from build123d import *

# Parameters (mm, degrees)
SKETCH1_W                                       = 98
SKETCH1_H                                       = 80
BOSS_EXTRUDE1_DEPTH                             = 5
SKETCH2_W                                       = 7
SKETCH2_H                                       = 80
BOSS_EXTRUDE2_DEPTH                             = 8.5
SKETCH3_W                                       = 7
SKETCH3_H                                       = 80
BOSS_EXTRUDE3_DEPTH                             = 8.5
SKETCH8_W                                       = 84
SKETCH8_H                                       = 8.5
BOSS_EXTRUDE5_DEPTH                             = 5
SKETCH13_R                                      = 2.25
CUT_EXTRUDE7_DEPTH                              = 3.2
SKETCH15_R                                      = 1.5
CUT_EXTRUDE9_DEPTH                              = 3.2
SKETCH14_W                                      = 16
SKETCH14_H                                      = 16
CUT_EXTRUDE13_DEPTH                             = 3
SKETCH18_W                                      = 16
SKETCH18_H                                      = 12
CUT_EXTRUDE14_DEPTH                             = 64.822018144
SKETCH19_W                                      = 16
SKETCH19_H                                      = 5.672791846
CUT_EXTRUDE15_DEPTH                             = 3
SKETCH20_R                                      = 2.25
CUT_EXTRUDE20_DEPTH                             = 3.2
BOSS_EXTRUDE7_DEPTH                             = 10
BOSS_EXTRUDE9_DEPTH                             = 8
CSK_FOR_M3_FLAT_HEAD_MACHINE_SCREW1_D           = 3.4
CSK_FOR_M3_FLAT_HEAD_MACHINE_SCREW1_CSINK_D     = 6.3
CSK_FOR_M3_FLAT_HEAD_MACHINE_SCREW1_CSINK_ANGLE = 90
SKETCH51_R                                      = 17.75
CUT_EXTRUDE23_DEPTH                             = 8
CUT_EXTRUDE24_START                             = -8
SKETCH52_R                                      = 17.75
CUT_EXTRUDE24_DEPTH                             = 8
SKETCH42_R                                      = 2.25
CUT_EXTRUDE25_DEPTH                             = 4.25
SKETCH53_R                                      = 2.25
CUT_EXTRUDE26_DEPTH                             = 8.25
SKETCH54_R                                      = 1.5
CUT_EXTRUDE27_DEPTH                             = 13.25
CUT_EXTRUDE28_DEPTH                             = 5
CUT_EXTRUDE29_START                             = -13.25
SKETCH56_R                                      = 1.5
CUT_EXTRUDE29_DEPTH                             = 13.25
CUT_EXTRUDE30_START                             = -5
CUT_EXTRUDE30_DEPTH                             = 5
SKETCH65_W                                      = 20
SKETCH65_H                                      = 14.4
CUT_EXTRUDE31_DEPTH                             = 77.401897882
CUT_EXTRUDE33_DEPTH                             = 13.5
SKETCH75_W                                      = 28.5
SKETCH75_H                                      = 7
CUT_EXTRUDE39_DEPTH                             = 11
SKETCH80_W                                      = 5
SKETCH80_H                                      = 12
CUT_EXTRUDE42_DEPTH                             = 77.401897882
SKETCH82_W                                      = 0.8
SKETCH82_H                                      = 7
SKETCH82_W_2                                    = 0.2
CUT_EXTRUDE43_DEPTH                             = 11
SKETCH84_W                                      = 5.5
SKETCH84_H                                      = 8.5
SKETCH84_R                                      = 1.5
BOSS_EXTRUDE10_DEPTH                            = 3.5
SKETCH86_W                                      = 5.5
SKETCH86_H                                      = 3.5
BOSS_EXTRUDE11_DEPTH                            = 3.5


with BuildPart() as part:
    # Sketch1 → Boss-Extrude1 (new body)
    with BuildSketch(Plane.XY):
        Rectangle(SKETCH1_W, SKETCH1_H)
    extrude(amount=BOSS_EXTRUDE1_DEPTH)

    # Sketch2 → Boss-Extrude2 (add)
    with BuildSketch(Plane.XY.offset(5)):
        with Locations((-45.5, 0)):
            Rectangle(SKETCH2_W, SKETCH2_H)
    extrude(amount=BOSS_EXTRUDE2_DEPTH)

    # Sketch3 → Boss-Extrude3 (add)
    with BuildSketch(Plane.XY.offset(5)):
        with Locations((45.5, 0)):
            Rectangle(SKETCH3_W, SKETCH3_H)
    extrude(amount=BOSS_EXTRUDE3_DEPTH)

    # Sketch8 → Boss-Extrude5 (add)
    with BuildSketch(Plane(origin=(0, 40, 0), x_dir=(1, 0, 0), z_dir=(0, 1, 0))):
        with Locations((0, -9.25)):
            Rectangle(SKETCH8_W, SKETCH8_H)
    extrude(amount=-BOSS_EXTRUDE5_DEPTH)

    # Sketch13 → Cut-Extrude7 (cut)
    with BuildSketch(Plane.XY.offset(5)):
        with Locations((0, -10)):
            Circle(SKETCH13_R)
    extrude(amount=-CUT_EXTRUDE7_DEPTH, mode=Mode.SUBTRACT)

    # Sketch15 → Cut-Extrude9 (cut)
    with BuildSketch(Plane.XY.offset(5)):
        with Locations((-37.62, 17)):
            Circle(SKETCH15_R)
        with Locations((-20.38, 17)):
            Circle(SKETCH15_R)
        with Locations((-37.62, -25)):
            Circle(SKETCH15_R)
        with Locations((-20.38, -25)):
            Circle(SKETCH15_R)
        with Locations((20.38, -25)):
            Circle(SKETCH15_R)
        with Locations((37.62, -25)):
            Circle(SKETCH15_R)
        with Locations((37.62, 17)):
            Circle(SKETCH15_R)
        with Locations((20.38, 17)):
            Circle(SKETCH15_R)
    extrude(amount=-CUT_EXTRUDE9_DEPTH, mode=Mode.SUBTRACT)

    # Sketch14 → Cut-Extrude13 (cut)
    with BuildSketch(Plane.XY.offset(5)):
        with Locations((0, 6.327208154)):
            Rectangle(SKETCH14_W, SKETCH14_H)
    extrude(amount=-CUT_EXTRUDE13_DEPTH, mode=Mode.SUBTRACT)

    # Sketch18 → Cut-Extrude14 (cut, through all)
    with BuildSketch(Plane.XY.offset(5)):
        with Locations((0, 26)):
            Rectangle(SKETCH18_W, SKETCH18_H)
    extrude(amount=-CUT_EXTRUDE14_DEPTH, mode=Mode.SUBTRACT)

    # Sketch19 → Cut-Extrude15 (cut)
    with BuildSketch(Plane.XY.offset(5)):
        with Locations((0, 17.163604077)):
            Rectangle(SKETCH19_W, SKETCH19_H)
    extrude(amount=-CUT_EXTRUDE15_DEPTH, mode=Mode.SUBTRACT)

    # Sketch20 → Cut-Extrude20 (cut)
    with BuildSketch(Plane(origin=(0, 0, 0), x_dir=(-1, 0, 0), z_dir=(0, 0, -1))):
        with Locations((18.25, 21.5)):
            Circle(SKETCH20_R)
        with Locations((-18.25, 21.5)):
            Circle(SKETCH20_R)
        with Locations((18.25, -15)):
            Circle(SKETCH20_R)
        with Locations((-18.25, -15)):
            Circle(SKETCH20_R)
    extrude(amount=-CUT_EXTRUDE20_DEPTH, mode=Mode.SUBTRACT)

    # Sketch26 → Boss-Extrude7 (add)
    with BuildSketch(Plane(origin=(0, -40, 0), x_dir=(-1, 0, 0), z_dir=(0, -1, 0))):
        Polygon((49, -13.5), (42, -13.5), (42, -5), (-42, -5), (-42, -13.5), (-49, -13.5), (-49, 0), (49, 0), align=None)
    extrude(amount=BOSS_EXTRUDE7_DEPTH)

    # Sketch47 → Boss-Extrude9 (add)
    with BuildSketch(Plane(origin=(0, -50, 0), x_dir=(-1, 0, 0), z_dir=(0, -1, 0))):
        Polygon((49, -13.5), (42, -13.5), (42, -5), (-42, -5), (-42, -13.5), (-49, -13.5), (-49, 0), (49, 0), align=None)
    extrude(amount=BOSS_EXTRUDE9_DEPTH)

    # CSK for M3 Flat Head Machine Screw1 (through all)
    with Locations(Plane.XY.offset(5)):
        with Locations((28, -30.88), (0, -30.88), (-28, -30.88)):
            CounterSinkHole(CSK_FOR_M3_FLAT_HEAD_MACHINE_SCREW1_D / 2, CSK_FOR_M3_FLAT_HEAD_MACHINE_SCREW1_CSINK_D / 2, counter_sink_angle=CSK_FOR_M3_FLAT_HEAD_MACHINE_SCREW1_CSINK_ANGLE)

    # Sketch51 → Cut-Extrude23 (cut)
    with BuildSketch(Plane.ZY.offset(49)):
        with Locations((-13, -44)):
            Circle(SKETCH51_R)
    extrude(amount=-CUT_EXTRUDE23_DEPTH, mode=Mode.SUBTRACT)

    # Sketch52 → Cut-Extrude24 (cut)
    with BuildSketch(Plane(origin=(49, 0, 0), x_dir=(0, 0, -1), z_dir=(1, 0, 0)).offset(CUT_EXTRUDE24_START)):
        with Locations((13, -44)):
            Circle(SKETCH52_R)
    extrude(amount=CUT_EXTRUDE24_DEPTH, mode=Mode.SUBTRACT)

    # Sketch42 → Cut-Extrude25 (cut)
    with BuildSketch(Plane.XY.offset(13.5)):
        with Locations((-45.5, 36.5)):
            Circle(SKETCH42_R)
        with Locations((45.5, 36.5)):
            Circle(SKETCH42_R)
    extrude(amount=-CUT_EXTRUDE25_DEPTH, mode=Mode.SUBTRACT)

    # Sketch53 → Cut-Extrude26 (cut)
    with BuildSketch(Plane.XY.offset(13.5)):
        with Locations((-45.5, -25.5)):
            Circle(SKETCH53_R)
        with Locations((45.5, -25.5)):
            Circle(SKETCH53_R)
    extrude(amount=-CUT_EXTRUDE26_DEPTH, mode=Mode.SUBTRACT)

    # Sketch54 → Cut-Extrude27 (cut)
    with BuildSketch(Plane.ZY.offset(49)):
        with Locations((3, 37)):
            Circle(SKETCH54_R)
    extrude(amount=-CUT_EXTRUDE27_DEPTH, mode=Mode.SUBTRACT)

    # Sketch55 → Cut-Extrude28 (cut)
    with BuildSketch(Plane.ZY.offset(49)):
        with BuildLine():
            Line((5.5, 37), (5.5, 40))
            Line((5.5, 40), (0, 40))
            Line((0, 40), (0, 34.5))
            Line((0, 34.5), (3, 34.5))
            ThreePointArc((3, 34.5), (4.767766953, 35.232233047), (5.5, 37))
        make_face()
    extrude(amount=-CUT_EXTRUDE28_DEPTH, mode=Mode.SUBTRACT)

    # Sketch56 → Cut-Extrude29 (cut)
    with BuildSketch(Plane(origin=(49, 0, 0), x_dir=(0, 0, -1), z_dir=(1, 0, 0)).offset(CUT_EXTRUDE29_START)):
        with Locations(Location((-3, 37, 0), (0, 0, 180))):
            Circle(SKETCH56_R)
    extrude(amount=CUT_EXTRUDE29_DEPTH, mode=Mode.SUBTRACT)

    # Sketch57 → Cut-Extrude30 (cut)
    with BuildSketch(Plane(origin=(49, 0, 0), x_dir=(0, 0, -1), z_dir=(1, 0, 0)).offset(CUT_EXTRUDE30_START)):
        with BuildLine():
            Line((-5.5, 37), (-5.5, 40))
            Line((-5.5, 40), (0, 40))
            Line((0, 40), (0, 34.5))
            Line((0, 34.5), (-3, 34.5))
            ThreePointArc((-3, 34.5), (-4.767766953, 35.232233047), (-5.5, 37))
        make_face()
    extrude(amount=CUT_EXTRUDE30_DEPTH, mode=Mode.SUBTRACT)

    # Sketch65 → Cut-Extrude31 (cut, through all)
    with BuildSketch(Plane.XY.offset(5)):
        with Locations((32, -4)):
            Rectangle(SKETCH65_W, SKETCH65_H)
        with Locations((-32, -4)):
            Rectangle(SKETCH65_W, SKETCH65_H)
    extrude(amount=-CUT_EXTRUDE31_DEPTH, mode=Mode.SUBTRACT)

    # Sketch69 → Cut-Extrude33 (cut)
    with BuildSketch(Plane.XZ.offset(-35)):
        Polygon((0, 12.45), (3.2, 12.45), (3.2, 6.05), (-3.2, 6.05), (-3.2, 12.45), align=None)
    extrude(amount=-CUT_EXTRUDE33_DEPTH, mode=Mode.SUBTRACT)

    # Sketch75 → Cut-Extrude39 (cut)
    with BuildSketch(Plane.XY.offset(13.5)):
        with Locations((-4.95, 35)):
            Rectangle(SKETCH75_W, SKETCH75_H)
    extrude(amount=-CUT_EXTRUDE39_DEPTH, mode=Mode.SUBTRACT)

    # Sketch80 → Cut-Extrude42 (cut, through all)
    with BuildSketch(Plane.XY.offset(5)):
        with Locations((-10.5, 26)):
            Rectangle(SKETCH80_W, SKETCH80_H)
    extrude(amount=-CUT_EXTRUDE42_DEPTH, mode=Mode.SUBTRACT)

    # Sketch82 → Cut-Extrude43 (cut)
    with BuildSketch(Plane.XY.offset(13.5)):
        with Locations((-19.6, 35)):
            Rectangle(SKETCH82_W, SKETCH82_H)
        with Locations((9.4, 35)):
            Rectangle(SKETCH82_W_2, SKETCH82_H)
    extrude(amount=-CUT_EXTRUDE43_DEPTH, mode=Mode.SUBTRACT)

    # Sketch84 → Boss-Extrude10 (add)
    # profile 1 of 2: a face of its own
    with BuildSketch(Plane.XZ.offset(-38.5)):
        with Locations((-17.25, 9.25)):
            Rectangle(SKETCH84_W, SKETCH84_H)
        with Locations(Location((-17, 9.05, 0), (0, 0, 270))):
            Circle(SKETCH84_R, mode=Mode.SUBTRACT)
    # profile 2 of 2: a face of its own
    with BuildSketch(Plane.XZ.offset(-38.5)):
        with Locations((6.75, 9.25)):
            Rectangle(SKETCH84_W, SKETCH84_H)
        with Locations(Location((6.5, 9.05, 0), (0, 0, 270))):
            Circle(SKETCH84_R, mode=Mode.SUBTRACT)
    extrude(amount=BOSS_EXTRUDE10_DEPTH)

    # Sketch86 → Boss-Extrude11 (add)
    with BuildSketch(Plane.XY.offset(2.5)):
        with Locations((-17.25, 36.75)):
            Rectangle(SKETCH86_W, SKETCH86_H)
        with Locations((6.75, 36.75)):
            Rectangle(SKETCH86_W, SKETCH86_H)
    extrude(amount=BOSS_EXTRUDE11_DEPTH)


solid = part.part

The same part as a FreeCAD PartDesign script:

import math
import FreeCAD as App
import Part
import Sketcher


def add_polygon(sketch, points):
    """Adds a closed chain of lines whose ends are joined by coincident constraints."""
    first, n = sketch.GeometryCount, len(points)
    for a, b in zip(points, points[1:] + points[:1]):
        sketch.addGeometry(Part.LineSegment(App.Vector(*a, 0), App.Vector(*b, 0)), False)
    for i in range(n):
        sketch.addConstraint(Sketcher.Constraint("Coincident", first + i, 2, first + (i + 1) % n, 1))

doc = App.newDocument("Part")
body = doc.addObject("PartDesign::Body", "Body")

sketch1 = body.newObject("Sketcher::SketchObject", "Sketch")
sketch1.AttachmentSupport = (doc.getObject("XY_Plane"), [""])
sketch1.MapMode = "FlatFace"
add_polygon(sketch1, [(-49, 40), (-49, -40), (49, -40), (49, 40)])
sketch1.addConstraint(Sketcher.Constraint("Vertical", 0))
sketch1.addConstraint(Sketcher.Constraint("Horizontal", 1))
sketch1.addConstraint(Sketcher.Constraint("Vertical", 2))
sketch1.addConstraint(Sketcher.Constraint("Horizontal", 3))
sketch1.addConstraint(Sketcher.Constraint("Symmetric", 0, 2, 2, 2, -1, 1))
sketch1.addConstraint(Sketcher.Constraint("DistanceX", 1, 1, 1, 2, 98.0))
sketch1.addConstraint(Sketcher.Constraint("DistanceY", 0, 2, 0, 1, 80.0))
pad1 = body.newObject("PartDesign::Pad", "Pad")
pad1.Profile = sketch1
pad1.Length = 5

sketch2 = body.newObject("Sketcher::SketchObject", "Sketch001")
sketch2.AttachmentSupport = (doc.getObject("XY_Plane"), [""])
sketch2.MapMode = "FlatFace"
sketch2.AttachmentOffset = App.Placement(App.Vector(0, 0, 5), App.Rotation())
add_polygon(sketch2, [(-49, 40), (-49, -40), (-42, -40), (-42, 40)])
sketch2.addConstraint(Sketcher.Constraint("Vertical", 0))
sketch2.addConstraint(Sketcher.Constraint("Horizontal", 1))
sketch2.addConstraint(Sketcher.Constraint("Vertical", 2))
sketch2.addConstraint(Sketcher.Constraint("Horizontal", 3))
sketch2.addConstraint(Sketcher.Constraint("DistanceX", 1, 1, 1, 2, 7.0))
sketch2.addConstraint(Sketcher.Constraint("DistanceY", 0, 2, 0, 1, 80.0))
sketch2.addConstraint(Sketcher.Constraint("DistanceX", 0, 2, -1, 1, 49.0))
sketch2.addConstraint(Sketcher.Constraint("DistanceY", 0, 2, -1, 1, 40.0))
pad2 = body.newObject("PartDesign::Pad", "Pad001")
pad2.Profile = sketch2
pad2.Length = 8.5

sketch3 = body.newObject("Sketcher::SketchObject", "Sketch002")
sketch3.AttachmentSupport = (doc.getObject("XY_Plane"), [""])
sketch3.MapMode = "FlatFace"
sketch3.AttachmentOffset = App.Placement(App.Vector(0, 0, 5), App.Rotation())
add_polygon(sketch3, [(42, 40), (42, -40), (49, -40), (49, 40)])
sketch3.addConstraint(Sketcher.Constraint("Vertical", 0))
sketch3.addConstraint(Sketcher.Constraint("Horizontal", 1))
sketch3.addConstraint(Sketcher.Constraint("Vertical", 2))
sketch3.addConstraint(Sketcher.Constraint("Horizontal", 3))
sketch3.addConstraint(Sketcher.Constraint("DistanceX", 1, 1, 1, 2, 7.0))
sketch3.addConstraint(Sketcher.Constraint("DistanceY", 0, 2, 0, 1, 80.0))
sketch3.addConstraint(Sketcher.Constraint("DistanceX", -1, 1, 0, 2, 42.0))
sketch3.addConstraint(Sketcher.Constraint("DistanceY", 0, 2, -1, 1, 40.0))
pad3 = body.newObject("PartDesign::Pad", "Pad002")
pad3.Profile = sketch3
pad3.Length = 8.5

sketch4 = body.newObject("Sketcher::SketchObject", "Sketch003")
sketch4.AttachmentSupport = (doc.getObject("XZ_Plane"), [""])
sketch4.MapMode = "FlatFace"
sketch4.AttachmentOffset = App.Placement(App.Vector(0, 0, -40), App.Rotation())
add_polygon(sketch4, [(-42, 5), (-42, 13.5), (42, 13.5), (42, 5)])
sketch4.addConstraint(Sketcher.Constraint("Vertical", 0))
sketch4.addConstraint(Sketcher.Constraint("Horizontal", 1))
sketch4.addConstraint(Sketcher.Constraint("Vertical", 2))
sketch4.addConstraint(Sketcher.Constraint("Horizontal", 3))
sketch4.addConstraint(Sketcher.Constraint("DistanceX", 1, 1, 1, 2, 84.0))
sketch4.addConstraint(Sketcher.Constraint("DistanceY", 0, 1, 0, 2, 8.5))
sketch4.addConstraint(Sketcher.Constraint("DistanceX", 0, 2, -1, 1, 42.0))
sketch4.addConstraint(Sketcher.Constraint("DistanceY", -1, 1, 2, 2, 5.0))
pad4 = body.newObject("PartDesign::Pad", "Pad003")
pad4.Profile = sketch4
pad4.Length = 5

sketch5 = body.newObject("Sketcher::SketchObject", "Sketch004")
sketch5.AttachmentSupport = (doc.getObject("XY_Plane"), [""])
sketch5.MapMode = "FlatFace"
sketch5.AttachmentOffset = App.Placement(App.Vector(0, 0, 5), App.Rotation())
sketch5.addGeometry(Part.Circle(App.Vector(0, -10, 0), App.Vector(0, 0, 1), 2.25), False)
sketch5.addConstraint(Sketcher.Constraint("PointOnObject", 0, 3, -2))
sketch5.addConstraint(Sketcher.Constraint("Diameter", 0, 4.5))
sketch5.addConstraint(Sketcher.Constraint("DistanceY", 0, 3, -1, 1, 10.0))
pocket1 = body.newObject("PartDesign::Pocket", "Pocket")
pocket1.Profile = sketch5
pocket1.Length = 3.2

sketch6 = body.newObject("Sketcher::SketchObject", "Sketch005")
sketch6.AttachmentSupport = (doc.getObject("XY_Plane"), [""])
sketch6.MapMode = "FlatFace"
sketch6.AttachmentOffset = App.Placement(App.Vector(0, 0, 5), App.Rotation())
sketch6.addGeometry(Part.Circle(App.Vector(-37.62, 17, 0), App.Vector(0, 0, 1), 1.5), False)
sketch6.addGeometry(Part.Circle(App.Vector(-20.38, 17, 0), App.Vector(0, 0, 1), 1.5), False)
sketch6.addGeometry(Part.Circle(App.Vector(-37.62, -25, 0), App.Vector(0, 0, 1), 1.5), False)
sketch6.addGeometry(Part.Circle(App.Vector(-20.38, -25, 0), App.Vector(0, 0, 1), 1.5), False)
sketch6.addGeometry(Part.Circle(App.Vector(20.38, -25, 0), App.Vector(0, 0, 1), 1.5), False)
sketch6.addGeometry(Part.Circle(App.Vector(37.62, -25, 0), App.Vector(0, 0, 1), 1.5), False)
sketch6.addGeometry(Part.Circle(App.Vector(37.62, 17, 0), App.Vector(0, 0, 1), 1.5), False)
sketch6.addGeometry(Part.Circle(App.Vector(20.38, 17, 0), App.Vector(0, 0, 1), 1.5), False)
sketch6.addConstraint(Sketcher.Constraint("Equal", 0, 1))
sketch6.addConstraint(Sketcher.Constraint("Equal", 1, 2))
sketch6.addConstraint(Sketcher.Constraint("Equal", 2, 3))
sketch6.addConstraint(Sketcher.Constraint("Equal", 3, 4))
sketch6.addConstraint(Sketcher.Constraint("Equal", 4, 5))
sketch6.addConstraint(Sketcher.Constraint("Equal", 5, 6))
sketch6.addConstraint(Sketcher.Constraint("Equal", 6, 7))
sketch6.addConstraint(Sketcher.Constraint("Symmetric", 3, 3, 4, 3, -2))
sketch6.addConstraint(Sketcher.Constraint("Symmetric", 2, 3, 5, 3, -2))
sketch6.addConstraint(Sketcher.Constraint("Symmetric", 0, 3, 6, 3, -2))
sketch6.addConstraint(Sketcher.Constraint("Symmetric", 1, 3, 7, 3, -2))
sketch6.addConstraint(Sketcher.Constraint("Horizontal", 0, 3, 1, 3))
sketch6.addConstraint(Sketcher.Constraint("Horizontal", 2, 3, 3, 3))
sketch6.addConstraint(Sketcher.Constraint("Vertical", 0, 3, 2, 3))
sketch6.addConstraint(Sketcher.Constraint("Vertical", 1, 3, 3, 3))
sketch6.addConstraint(Sketcher.Constraint("Diameter", 0, 3.0))
sketch6.addConstraint(Sketcher.Constraint("DistanceY", -1, 1, 0, 3, 17.0))
sketch6.addConstraint(Sketcher.Constraint("DistanceY", 2, 3, -1, 1, 25.0))
sketch6.addConstraint(Sketcher.Constraint("DistanceX", 2, 3, 4, 3, 58.0))
sketch6.addConstraint(Sketcher.Constraint("DistanceX", 0, 3, -1, 1, 37.62))
pocket2 = body.newObject("PartDesign::Pocket", "Pocket001")
pocket2.Profile = sketch6
pocket2.Length = 3.2

sketch7 = body.newObject("Sketcher::SketchObject", "Sketch006")
sketch7.AttachmentSupport = (doc.getObject("XY_Plane"), [""])
sketch7.MapMode = "FlatFace"
sketch7.AttachmentOffset = App.Placement(App.Vector(0, 0, 5), App.Rotation())
add_polygon(sketch7, [(-8, 14.327208), (-8, -1.672792), (8, -1.672792), (8, 14.327208)])
sketch7.addConstraint(Sketcher.Constraint("Vertical", 0))
sketch7.addConstraint(Sketcher.Constraint("Horizontal", 1))
sketch7.addConstraint(Sketcher.Constraint("Vertical", 2))
sketch7.addConstraint(Sketcher.Constraint("Horizontal", 3))
sketch7.addConstraint(Sketcher.Constraint("Equal", 3, 0))
sketch7.addConstraint(Sketcher.Constraint("DistanceX", 1, 1, 1, 2, 16.0))
sketch7.addConstraint(Sketcher.Constraint("DistanceX", 0, 2, -1, 1, 8.0))
sketch7.addConstraint(Sketcher.Constraint("DistanceY", 0, 2, -1, 1, 1.672792))
pocket3 = body.newObject("PartDesign::Pocket", "Pocket002")
pocket3.Profile = sketch7
pocket3.Length = 3

sketch8 = body.newObject("Sketcher::SketchObject", "Sketch007")
sketch8.AttachmentSupport = (doc.getObject("XY_Plane"), [""])
sketch8.MapMode = "FlatFace"
sketch8.AttachmentOffset = App.Placement(App.Vector(0, 0, 5), App.Rotation())
add_polygon(sketch8, [(-8, 32), (-8, 20), (8, 20), (8, 32)])
sketch8.addConstraint(Sketcher.Constraint("Vertical", 0))
sketch8.addConstraint(Sketcher.Constraint("Horizontal", 1))
sketch8.addConstraint(Sketcher.Constraint("Vertical", 2))
sketch8.addConstraint(Sketcher.Constraint("Horizontal", 3))
sketch8.addConstraint(Sketcher.Constraint("DistanceX", 1, 1, 1, 2, 16.0))
sketch8.addConstraint(Sketcher.Constraint("DistanceY", 0, 2, 0, 1, 12.0))
sketch8.addConstraint(Sketcher.Constraint("DistanceX", 0, 2, -1, 1, 8.0))
sketch8.addConstraint(Sketcher.Constraint("DistanceY", -1, 1, 0, 2, 20.0))
pocket4 = body.newObject("PartDesign::Pocket", "Pocket003")
pocket4.Profile = sketch8
pocket4.Type = "ThroughAll"

sketch9 = body.newObject("Sketcher::SketchObject", "Sketch008")
sketch9.AttachmentSupport = (doc.getObject("XY_Plane"), [""])
sketch9.MapMode = "FlatFace"
sketch9.AttachmentOffset = App.Placement(App.Vector(0, 0, 5), App.Rotation())
add_polygon(sketch9, [(-8, 20), (-8, 14.327208), (8, 14.327208), (8, 20)])
sketch9.addConstraint(Sketcher.Constraint("Vertical", 0))
sketch9.addConstraint(Sketcher.Constraint("Horizontal", 1))
sketch9.addConstraint(Sketcher.Constraint("Vertical", 2))
sketch9.addConstraint(Sketcher.Constraint("Horizontal", 3))
sketch9.addConstraint(Sketcher.Constraint("DistanceX", 1, 1, 1, 2, 16.0))
sketch9.addConstraint(Sketcher.Constraint("DistanceX", 0, 2, -1, 1, 8.0))
sketch9.addConstraint(Sketcher.Constraint("DistanceY", -1, 1, 2, 2, 20.0))
sketch9.addConstraint(Sketcher.Constraint("DistanceY", 0, 2, 0, 1, 5.672792))
pocket5 = body.newObject("PartDesign::Pocket", "Pocket004")
pocket5.Profile = sketch9
pocket5.Length = 3

sketch10 = body.newObject("Sketcher::SketchObject", "Sketch009")
sketch10.AttachmentSupport = (doc.getObject("XY_Plane"), [""])
sketch10.MapMode = "FlatFace"
sketch10.addGeometry(Part.Circle(App.Vector(-18.25, 21.5, 0), App.Vector(0, 0, 1), 2.25), False)
sketch10.addGeometry(Part.Circle(App.Vector(18.25, 21.5, 0), App.Vector(0, 0, 1), 2.25), False)
sketch10.addGeometry(Part.Circle(App.Vector(-18.25, -15, 0), App.Vector(0, 0, 1), 2.25), False)
sketch10.addGeometry(Part.Circle(App.Vector(18.25, -15, 0), App.Vector(0, 0, 1), 2.25), False)
sketch10.addConstraint(Sketcher.Constraint("Equal", 0, 1))
sketch10.addConstraint(Sketcher.Constraint("Equal", 1, 2))
sketch10.addConstraint(Sketcher.Constraint("Equal", 2, 3))
sketch10.addConstraint(Sketcher.Constraint("Symmetric", 0, 3, 1, 3, -2))
sketch10.addConstraint(Sketcher.Constraint("Symmetric", 2, 3, 3, 3, -2))
sketch10.addConstraint(Sketcher.Constraint("Vertical", 0, 3, 2, 3))
sketch10.addConstraint(Sketcher.Constraint("Diameter", 0, 4.5))
sketch10.addConstraint(Sketcher.Constraint("DistanceY", 2, 3, -1, 1, 15.0))
sketch10.addConstraint(Sketcher.Constraint("DistanceY", -1, 1, 0, 3, 21.5))
sketch10.addConstraint(Sketcher.Constraint("DistanceX", 0, 3, 1, 3, 36.5))
pocket6 = body.newObject("PartDesign::Pocket", "Pocket005")
pocket6.Profile = sketch10
pocket6.Length = 3.2
pocket6.Reversed = True

sketch11 = body.newObject("Sketcher::SketchObject", "Sketch010")
sketch11.AttachmentSupport = (doc.getObject("XZ_Plane"), [""])
sketch11.MapMode = "FlatFace"
sketch11.AttachmentOffset = App.Placement(App.Vector(0, 0, 40), App.Rotation())
add_polygon(sketch11, [(-42, 13.5), (-49, 13.5), (-49, 0), (49, 0), (49, 13.5), (42, 13.5), (42, 5), (-42, 5)])
sketch11.addConstraint(Sketcher.Constraint("Horizontal", 0))
sketch11.addConstraint(Sketcher.Constraint("Vertical", 1))
sketch11.addConstraint(Sketcher.Constraint("Horizontal", 2))
sketch11.addConstraint(Sketcher.Constraint("Vertical", 3))
sketch11.addConstraint(Sketcher.Constraint("Horizontal", 4))
sketch11.addConstraint(Sketcher.Constraint("Vertical", 5))
sketch11.addConstraint(Sketcher.Constraint("Horizontal", 6))
sketch11.addConstraint(Sketcher.Constraint("Vertical", 7))
sketch11.addConstraint(Sketcher.Constraint("Symmetric", 1, 2, 2, 2, -1, 1))
sketch11.addConstraint(Sketcher.Constraint("Symmetric", 4, 2, 7, 2, -2))
sketch11.addConstraint(Sketcher.Constraint("DistanceX", 0, 2, 0, 1, 7.0))
sketch11.addConstraint(Sketcher.Constraint("DistanceX", 2, 1, 2, 2, 98.0))
sketch11.addConstraint(Sketcher.Constraint("DistanceY", 1, 2, 1, 1, 13.5))
sketch11.addConstraint(Sketcher.Constraint("DistanceY", 5, 2, 5, 1, 8.5))
pad5 = body.newObject("PartDesign::Pad", "Pad004")
pad5.Profile = sketch11
pad5.Length = 10

sketch12 = body.newObject("Sketcher::SketchObject", "Sketch011")
sketch12.AttachmentSupport = (doc.getObject("XZ_Plane"), [""])
sketch12.MapMode = "FlatFace"
sketch12.AttachmentOffset = App.Placement(App.Vector(0, 0, 50), App.Rotation())
add_polygon(sketch12, [(-42, 13.5), (-49, 13.5), (-49, 0), (49, 0), (49, 13.5), (42, 13.5), (42, 5), (-42, 5)])
sketch12.addConstraint(Sketcher.Constraint("Horizontal", 0))
sketch12.addConstraint(Sketcher.Constraint("Vertical", 1))
sketch12.addConstraint(Sketcher.Constraint("Horizontal", 2))
sketch12.addConstraint(Sketcher.Constraint("Vertical", 3))
sketch12.addConstraint(Sketcher.Constraint("Horizontal", 4))
sketch12.addConstraint(Sketcher.Constraint("Vertical", 5))
sketch12.addConstraint(Sketcher.Constraint("Horizontal", 6))
sketch12.addConstraint(Sketcher.Constraint("Vertical", 7))
sketch12.addConstraint(Sketcher.Constraint("Symmetric", 1, 2, 2, 2, -1, 1))
sketch12.addConstraint(Sketcher.Constraint("Symmetric", 4, 2, 7, 2, -2))
sketch12.addConstraint(Sketcher.Constraint("DistanceX", 0, 2, 0, 1, 7.0))
sketch12.addConstraint(Sketcher.Constraint("DistanceX", 2, 1, 2, 2, 98.0))
sketch12.addConstraint(Sketcher.Constraint("DistanceY", 1, 2, 1, 1, 13.5))
sketch12.addConstraint(Sketcher.Constraint("DistanceY", 5, 2, 5, 1, 8.5))
pad6 = body.newObject("PartDesign::Pad", "Pad005")
pad6.Profile = sketch12
pad6.Length = 8

sketch13 = body.newObject("Sketcher::SketchObject", "Sketch012")
sketch13.AttachmentSupport = (doc.getObject("XY_Plane"), [""])
sketch13.MapMode = "FlatFace"
sketch13.AttachmentOffset = App.Placement(App.Vector(0, 0, 5), App.Rotation())
sketch13.addGeometry(Part.Circle(App.Vector(28, -30.88, 0), App.Vector(0, 0, 1), 1.7), False)
sketch13.addGeometry(Part.Circle(App.Vector(0, -30.88, 0), App.Vector(0, 0, 1), 1.7), False)
sketch13.addGeometry(Part.Circle(App.Vector(-28, -30.88, 0), App.Vector(0, 0, 1), 1.7), False)
sketch13.addConstraint(Sketcher.Constraint("Equal", 0, 1))
sketch13.addConstraint(Sketcher.Constraint("Equal", 1, 2))
sketch13.addConstraint(Sketcher.Constraint("Symmetric", 0, 3, 2, 3, -2))
sketch13.addConstraint(Sketcher.Constraint("PointOnObject", 1, 3, -2))
sketch13.addConstraint(Sketcher.Constraint("Horizontal", 0, 3, 1, 3))
sketch13.addConstraint(Sketcher.Constraint("Diameter", 0, 3.4))
sketch13.addConstraint(Sketcher.Constraint("DistanceX", -1, 1, 0, 3, 28.0))
sketch13.addConstraint(Sketcher.Constraint("DistanceY", 0, 3, -1, 1, 30.88))
doc.recompute()
hole = body.newObject("PartDesign::Hole", "Hole")
hole.Profile = sketch13
hole.ThreadType = "None"
hole.Diameter = 3.4
hole.DepthType = "ThroughAll"
hole.HoleCutType = "Countersink"
hole.HoleCutDiameter = 6.3
hole.HoleCutCountersinkAngle = 90

sketch14 = body.newObject("Sketcher::SketchObject", "Sketch013")
sketch14.AttachmentSupport = (doc.getObject("YZ_Plane"), [""])
sketch14.MapMode = "FlatFace"
sketch14.AttachmentOffset = App.Placement(App.Vector(0, 0, -49), App.Rotation())
sketch14.addGeometry(Part.Circle(App.Vector(-44, -13, 0), App.Vector(0, 0, 1), 17.75), False)
sketch14.addConstraint(Sketcher.Constraint("Diameter", 0, 35.5))
sketch14.addConstraint(Sketcher.Constraint("DistanceX", 0, 3, -1, 1, 44.0))
sketch14.addConstraint(Sketcher.Constraint("DistanceY", 0, 3, -1, 1, 13.0))
pocket7 = body.newObject("PartDesign::Pocket", "Pocket006")
pocket7.Profile = sketch14
pocket7.Length = 8
pocket7.Reversed = True

sketch15 = body.newObject("Sketcher::SketchObject", "Sketch014")
sketch15.AttachmentSupport = (doc.getObject("YZ_Plane"), [""])
sketch15.MapMode = "FlatFace"
sketch15.AttachmentOffset = App.Placement(App.Vector(0, 0, 41), App.Rotation())
sketch15.addGeometry(Part.Circle(App.Vector(-44, -13, 0), App.Vector(0, 0, 1), 17.75), False)
sketch15.addConstraint(Sketcher.Constraint("Diameter", 0, 35.5))
sketch15.addConstraint(Sketcher.Constraint("DistanceX", 0, 3, -1, 1, 44.0))
sketch15.addConstraint(Sketcher.Constraint("DistanceY", 0, 3, -1, 1, 13.0))
pocket8 = body.newObject("PartDesign::Pocket", "Pocket007")
pocket8.Profile = sketch15
pocket8.Length = 8
pocket8.Reversed = True

sketch16 = body.newObject("Sketcher::SketchObject", "Sketch015")
sketch16.AttachmentSupport = (doc.getObject("XY_Plane"), [""])
sketch16.MapMode = "FlatFace"
sketch16.AttachmentOffset = App.Placement(App.Vector(0, 0, 13.5), App.Rotation())
sketch16.addGeometry(Part.Circle(App.Vector(-45.5, 36.5, 0), App.Vector(0, 0, 1), 2.25), False)
sketch16.addGeometry(Part.Circle(App.Vector(45.5, 36.5, 0), App.Vector(0, 0, 1), 2.25), False)
sketch16.addConstraint(Sketcher.Constraint("Equal", 0, 1))
sketch16.addConstraint(Sketcher.Constraint("Symmetric", 0, 3, 1, 3, -2))
sketch16.addConstraint(Sketcher.Constraint("Diameter", 0, 4.5))
sketch16.addConstraint(Sketcher.Constraint("DistanceX", 0, 3, 1, 3, 91.0))
sketch16.addConstraint(Sketcher.Constraint("DistanceY", -1, 1, 0, 3, 36.5))
pocket9 = body.newObject("PartDesign::Pocket", "Pocket008")
pocket9.Profile = sketch16
pocket9.Length = 4.25

sketch17 = body.newObject("Sketcher::SketchObject", "Sketch016")
sketch17.AttachmentSupport = (doc.getObject("XY_Plane"), [""])
sketch17.MapMode = "FlatFace"
sketch17.AttachmentOffset = App.Placement(App.Vector(0, 0, 13.5), App.Rotation())
sketch17.addGeometry(Part.Circle(App.Vector(-45.5, -25.5, 0), App.Vector(0, 0, 1), 2.25), False)
sketch17.addGeometry(Part.Circle(App.Vector(45.5, -25.5, 0), App.Vector(0, 0, 1), 2.25), False)
sketch17.addConstraint(Sketcher.Constraint("Equal", 0, 1))
sketch17.addConstraint(Sketcher.Constraint("Symmetric", 0, 3, 1, 3, -2))
sketch17.addConstraint(Sketcher.Constraint("Diameter", 0, 4.5))
sketch17.addConstraint(Sketcher.Constraint("DistanceX", 0, 3, 1, 3, 91.0))
sketch17.addConstraint(Sketcher.Constraint("DistanceY", 0, 3, -1, 1, 25.5))
pocket10 = body.newObject("PartDesign::Pocket", "Pocket009")
pocket10.Profile = sketch17
pocket10.Length = 8.25

sketch18 = body.newObject("Sketcher::SketchObject", "Sketch017")
sketch18.AttachmentSupport = (doc.getObject("YZ_Plane"), [""])
sketch18.MapMode = "FlatFace"
sketch18.AttachmentOffset = App.Placement(App.Vector(0, 0, -49), App.Rotation())
sketch18.addGeometry(Part.Circle(App.Vector(37, 3, 0), App.Vector(0, 0, 1), 1.5), False)
sketch18.addConstraint(Sketcher.Constraint("Diameter", 0, 3.0))
sketch18.addConstraint(Sketcher.Constraint("DistanceX", -1, 1, 0, 3, 37.0))
sketch18.addConstraint(Sketcher.Constraint("DistanceY", -1, 1, 0, 3, 3.0))
pocket11 = body.newObject("PartDesign::Pocket", "Pocket010")
pocket11.Profile = sketch18
pocket11.Length = 13.25
pocket11.Reversed = True

sketch19 = body.newObject("Sketcher::SketchObject", "Sketch018")
sketch19.AttachmentSupport = (doc.getObject("YZ_Plane"), [""])
sketch19.MapMode = "FlatFace"
sketch19.AttachmentOffset = App.Placement(App.Vector(0, 0, -49), App.Rotation())
sketch19.addGeometry(Part.LineSegment(App.Vector(37, 5.5, 0), App.Vector(40, 5.5, 0)), False)
sketch19.addGeometry(Part.LineSegment(App.Vector(40, 5.5, 0), App.Vector(40, 0, 0)), False)
sketch19.addGeometry(Part.LineSegment(App.Vector(40, 0, 0), App.Vector(34.5, 0, 0)), False)
sketch19.addGeometry(Part.LineSegment(App.Vector(34.5, 0, 0), App.Vector(34.5, 3, 0)), False)
sketch19.addGeometry(Part.ArcOfCircle(Part.Circle(App.Vector(37, 3, 0), App.Vector(0, 0, 1), 2.5), math.radians(90), math.radians(180)), False)
sketch19.addConstraint(Sketcher.Constraint("Coincident", 0, 2, 1, 1))
sketch19.addConstraint(Sketcher.Constraint("Coincident", 1, 2, 2, 1))
sketch19.addConstraint(Sketcher.Constraint("Coincident", 2, 2, 3, 1))
sketch19.addConstraint(Sketcher.Constraint("Tangent", 3, 2, 4, 2))
sketch19.addConstraint(Sketcher.Constraint("Tangent", 4, 1, 0, 1))
sketch19.addConstraint(Sketcher.Constraint("Horizontal", 0))
sketch19.addConstraint(Sketcher.Constraint("Vertical", 1))
sketch19.addConstraint(Sketcher.Constraint("Horizontal", 2))
sketch19.addConstraint(Sketcher.Constraint("Vertical", 3))
sketch19.addConstraint(Sketcher.Constraint("PointOnObject", 1, 2, -1))
sketch19.addConstraint(Sketcher.Constraint("Equal", 2, 1))
sketch19.addConstraint(Sketcher.Constraint("Radius", 4, 2.5))
sketch19.addConstraint(Sketcher.Constraint("DistanceX", 0, 1, 0, 2, 3.0))
sketch19.addConstraint(Sketcher.Constraint("DistanceX", -1, 1, 4, 3, 37.0))
pocket12 = body.newObject("PartDesign::Pocket", "Pocket011")
pocket12.Profile = sketch19
pocket12.Length = 5
pocket12.Reversed = True

sketch20 = body.newObject("Sketcher::SketchObject", "Sketch019")
sketch20.AttachmentSupport = (doc.getObject("YZ_Plane"), [""])
sketch20.MapMode = "FlatFace"
sketch20.AttachmentOffset = App.Placement(App.Vector(0, 0, 35.75), App.Rotation())
sketch20.addGeometry(Part.Circle(App.Vector(37, 3, 0), App.Vector(0, 0, 1), 1.5), False)
sketch20.addConstraint(Sketcher.Constraint("Diameter", 0, 3.0))
sketch20.addConstraint(Sketcher.Constraint("DistanceX", -1, 1, 0, 3, 37.0))
sketch20.addConstraint(Sketcher.Constraint("DistanceY", -1, 1, 0, 3, 3.0))
pocket13 = body.newObject("PartDesign::Pocket", "Pocket012")
pocket13.Profile = sketch20
pocket13.Length = 13.25
pocket13.Reversed = True

sketch21 = body.newObject("Sketcher::SketchObject", "Sketch020")
sketch21.AttachmentSupport = (doc.getObject("YZ_Plane"), [""])
sketch21.MapMode = "FlatFace"
sketch21.AttachmentOffset = App.Placement(App.Vector(0, 0, 44), App.Rotation())
sketch21.addGeometry(Part.LineSegment(App.Vector(40, 5.5, 0), App.Vector(37, 5.5, 0)), False)
sketch21.addGeometry(Part.ArcOfCircle(Part.Circle(App.Vector(37, 3, 0), App.Vector(0, 0, 1), 2.5), math.radians(90), math.radians(180)), False)
sketch21.addGeometry(Part.LineSegment(App.Vector(34.5, 3, 0), App.Vector(34.5, 0, 0)), False)
sketch21.addGeometry(Part.LineSegment(App.Vector(34.5, 0, 0), App.Vector(40, 0, 0)), False)
sketch21.addGeometry(Part.LineSegment(App.Vector(40, 0, 0), App.Vector(40, 5.5, 0)), False)
sketch21.addConstraint(Sketcher.Constraint("Tangent", 0, 2, 1, 1))
sketch21.addConstraint(Sketcher.Constraint("Tangent", 1, 2, 2, 1))
sketch21.addConstraint(Sketcher.Constraint("Coincident", 2, 2, 3, 1))
sketch21.addConstraint(Sketcher.Constraint("Coincident", 3, 2, 4, 1))
sketch21.addConstraint(Sketcher.Constraint("Coincident", 4, 2, 0, 1))
sketch21.addConstraint(Sketcher.Constraint("Horizontal", 0))
sketch21.addConstraint(Sketcher.Constraint("Vertical", 2))
sketch21.addConstraint(Sketcher.Constraint("Horizontal", 3))
sketch21.addConstraint(Sketcher.Constraint("Vertical", 4))
sketch21.addConstraint(Sketcher.Constraint("PointOnObject", 2, 2, -1))
sketch21.addConstraint(Sketcher.Constraint("Equal", 0, 2))
sketch21.addConstraint(Sketcher.Constraint("Radius", 1, 2.5))
sketch21.addConstraint(Sketcher.Constraint("DistanceX", 0, 2, 0, 1, 3.0))
sketch21.addConstraint(Sketcher.Constraint("DistanceX", -1, 1, 1, 3, 37.0))
pocket14 = body.newObject("PartDesign::Pocket", "Pocket013")
pocket14.Profile = sketch21
pocket14.Length = 5
pocket14.Reversed = True

sketch22 = body.newObject("Sketcher::SketchObject", "Sketch021")
sketch22.AttachmentSupport = (doc.getObject("XY_Plane"), [""])
sketch22.MapMode = "FlatFace"
sketch22.AttachmentOffset = App.Placement(App.Vector(0, 0, 5), App.Rotation())
add_polygon(sketch22, [(22, 3.2), (22, -11.2), (42, -11.2), (42, 3.2)])
add_polygon(sketch22, [(-42, 3.2), (-42, -11.2), (-22, -11.2), (-22, 3.2)])
sketch22.addConstraint(Sketcher.Constraint("Vertical", 0))
sketch22.addConstraint(Sketcher.Constraint("Horizontal", 1))
sketch22.addConstraint(Sketcher.Constraint("Vertical", 2))
sketch22.addConstraint(Sketcher.Constraint("Horizontal", 3))
sketch22.addConstraint(Sketcher.Constraint("Vertical", 4))
sketch22.addConstraint(Sketcher.Constraint("Horizontal", 5))
sketch22.addConstraint(Sketcher.Constraint("Vertical", 6))
sketch22.addConstraint(Sketcher.Constraint("Horizontal", 7))
sketch22.addConstraint(Sketcher.Constraint("Symmetric", 1, 2, 4, 2, -2))
sketch22.addConstraint(Sketcher.Constraint("Symmetric", 3, 2, 6, 2, -2))
sketch22.addConstraint(Sketcher.Constraint("DistanceX", 1, 1, 1, 2, 20.0))
sketch22.addConstraint(Sketcher.Constraint("DistanceY", 0, 2, 0, 1, 14.4))
sketch22.addConstraint(Sketcher.Constraint("DistanceX", -1, 1, 0, 2, 22.0))
sketch22.addConstraint(Sketcher.Constraint("DistanceY", 0, 2, -1, 1, 11.2))
pocket15 = body.newObject("PartDesign::Pocket", "Pocket014")
pocket15.Profile = sketch22
pocket15.Type = "ThroughAll"

sketch23 = body.newObject("Sketcher::SketchObject", "Sketch022")
sketch23.AttachmentSupport = (doc.getObject("XZ_Plane"), [""])
sketch23.MapMode = "FlatFace"
sketch23.AttachmentOffset = App.Placement(App.Vector(0, 0, -35), App.Rotation())
add_polygon(sketch23, [(3.2, 12.45), (-3.2, 12.45), (-3.2, 6.05), (3.2, 6.05)])
sketch23.addConstraint(Sketcher.Constraint("Horizontal", 0))
sketch23.addConstraint(Sketcher.Constraint("Vertical", 1))
sketch23.addConstraint(Sketcher.Constraint("Horizontal", 2))
sketch23.addConstraint(Sketcher.Constraint("Vertical", 3))
sketch23.addConstraint(Sketcher.Constraint("Equal", 2, 1))
sketch23.addConstraint(Sketcher.Constraint("DistanceX", 0, 2, 0, 1, 6.4))
sketch23.addConstraint(Sketcher.Constraint("DistanceX", 0, 2, -1, 1, 3.2))
sketch23.addConstraint(Sketcher.Constraint("DistanceY", -1, 1, 0, 2, 12.45))
pocket16 = body.newObject("PartDesign::Pocket", "Pocket015")
pocket16.Profile = sketch23
pocket16.Length = 13.5

sketch24 = body.newObject("Sketcher::SketchObject", "Sketch023")
sketch24.AttachmentSupport = (doc.getObject("XY_Plane"), [""])
sketch24.MapMode = "FlatFace"
sketch24.AttachmentOffset = App.Placement(App.Vector(0, 0, 13.5), App.Rotation())
add_polygon(sketch24, [(-19.2, 38.5), (-19.2, 31.5), (9.3, 31.5), (9.3, 38.5)])
sketch24.addConstraint(Sketcher.Constraint("Vertical", 0))
sketch24.addConstraint(Sketcher.Constraint("Horizontal", 1))
sketch24.addConstraint(Sketcher.Constraint("Vertical", 2))
sketch24.addConstraint(Sketcher.Constraint("Horizontal", 3))
sketch24.addConstraint(Sketcher.Constraint("DistanceY", 0, 2, 0, 1, 7.0))
sketch24.addConstraint(Sketcher.Constraint("DistanceX", 1, 1, 1, 2, 28.5))
sketch24.addConstraint(Sketcher.Constraint("DistanceX", 0, 2, -1, 1, 19.2))
sketch24.addConstraint(Sketcher.Constraint("DistanceY", -1, 1, 0, 2, 31.5))
pocket17 = body.newObject("PartDesign::Pocket", "Pocket016")
pocket17.Profile = sketch24
pocket17.Length = 11

sketch25 = body.newObject("Sketcher::SketchObject", "Sketch024")
sketch25.AttachmentSupport = (doc.getObject("XY_Plane"), [""])
sketch25.MapMode = "FlatFace"
sketch25.AttachmentOffset = App.Placement(App.Vector(0, 0, 5), App.Rotation())
add_polygon(sketch25, [(-13, 32), (-13, 20), (-8, 20), (-8, 32)])
sketch25.addConstraint(Sketcher.Constraint("Vertical", 0))
sketch25.addConstraint(Sketcher.Constraint("Horizontal", 1))
sketch25.addConstraint(Sketcher.Constraint("Vertical", 2))
sketch25.addConstraint(Sketcher.Constraint("Horizontal", 3))
sketch25.addConstraint(Sketcher.Constraint("DistanceX", 1, 1, 1, 2, 5.0))
sketch25.addConstraint(Sketcher.Constraint("DistanceY", 0, 2, 0, 1, 12.0))
sketch25.addConstraint(Sketcher.Constraint("DistanceX", 0, 2, -1, 1, 13.0))
sketch25.addConstraint(Sketcher.Constraint("DistanceY", -1, 1, 0, 2, 20.0))
pocket18 = body.newObject("PartDesign::Pocket", "Pocket017")
pocket18.Profile = sketch25
pocket18.Type = "ThroughAll"

sketch26 = body.newObject("Sketcher::SketchObject", "Sketch025")
sketch26.AttachmentSupport = (doc.getObject("XY_Plane"), [""])
sketch26.MapMode = "FlatFace"
sketch26.AttachmentOffset = App.Placement(App.Vector(0, 0, 13.5), App.Rotation())
add_polygon(sketch26, [(-20, 38.5), (-20, 31.5), (-19.2, 31.5), (-19.2, 38.5)])
add_polygon(sketch26, [(9.3, 38.5), (9.3, 31.5), (9.5, 31.5), (9.5, 38.5)])
sketch26.addConstraint(Sketcher.Constraint("Vertical", 0))
sketch26.addConstraint(Sketcher.Constraint("Horizontal", 1))
sketch26.addConstraint(Sketcher.Constraint("Vertical", 2))
sketch26.addConstraint(Sketcher.Constraint("Horizontal", 3))
sketch26.addConstraint(Sketcher.Constraint("Vertical", 4))
sketch26.addConstraint(Sketcher.Constraint("Horizontal", 5))
sketch26.addConstraint(Sketcher.Constraint("Vertical", 6))
sketch26.addConstraint(Sketcher.Constraint("Horizontal", 7))
sketch26.addConstraint(Sketcher.Constraint("Horizontal", 1, 2, 4, 2))
sketch26.addConstraint(Sketcher.Constraint("Horizontal", 3, 2, 6, 2))
sketch26.addConstraint(Sketcher.Constraint("DistanceY", 0, 2, 0, 1, 7.0))
sketch26.addConstraint(Sketcher.Constraint("DistanceX", 1, 1, 1, 2, 0.8))
sketch26.addConstraint(Sketcher.Constraint("DistanceX", 5, 1, 5, 2, 0.2))
sketch26.addConstraint(Sketcher.Constraint("DistanceX", 0, 2, -1, 1, 20.0))
sketch26.addConstraint(Sketcher.Constraint("DistanceY", -1, 1, 0, 2, 31.5))
sketch26.addConstraint(Sketcher.Constraint("DistanceX", -1, 1, 4, 2, 9.3))
pocket19 = body.newObject("PartDesign::Pocket", "Pocket018")
pocket19.Profile = sketch26
pocket19.Length = 11

sketch27 = body.newObject("Sketcher::SketchObject", "Sketch026")
sketch27.AttachmentSupport = (doc.getObject("XZ_Plane"), [""])
sketch27.MapMode = "FlatFace"
sketch27.AttachmentOffset = App.Placement(App.Vector(0, 0, -38.5), App.Rotation())
add_polygon(sketch27, [(-20, 13.5), (-20, 5), (-14.5, 5), (-14.5, 13.5)])
sketch27.addGeometry(Part.Circle(App.Vector(-17, 9.05, 0), App.Vector(0, 0, 1), 1.5), False)
add_polygon(sketch27, [(4, 13.5), (4, 5), (9.5, 5), (9.5, 13.5)])
sketch27.addGeometry(Part.Circle(App.Vector(6.5, 9.05, 0), App.Vector(0, 0, 1), 1.5), False)
sketch27.addConstraint(Sketcher.Constraint("Vertical", 0))
sketch27.addConstraint(Sketcher.Constraint("Horizontal", 1))
sketch27.addConstraint(Sketcher.Constraint("Vertical", 2))
sketch27.addConstraint(Sketcher.Constraint("Horizontal", 3))
sketch27.addConstraint(Sketcher.Constraint("Vertical", 5))
sketch27.addConstraint(Sketcher.Constraint("Horizontal", 6))
sketch27.addConstraint(Sketcher.Constraint("Vertical", 7))
sketch27.addConstraint(Sketcher.Constraint("Horizontal", 8))
sketch27.addConstraint(Sketcher.Constraint("Equal", 4, 9))
sketch27.addConstraint(Sketcher.Constraint("Horizontal", 4, 3, 9, 3))
sketch27.addConstraint(Sketcher.Constraint("Horizontal", 1, 2, 5, 2))
sketch27.addConstraint(Sketcher.Constraint("Horizontal", 3, 2, 7, 2))
sketch27.addConstraint(Sketcher.Constraint("Equal", 3, 6))
sketch27.addConstraint(Sketcher.Constraint("Diameter", 4, 3.0))
sketch27.addConstraint(Sketcher.Constraint("DistanceX", 1, 1, 1, 2, 5.5))
sketch27.addConstraint(Sketcher.Constraint("DistanceY", 0, 2, 0, 1, 8.5))
sketch27.addConstraint(Sketcher.Constraint("DistanceX", 4, 3, -1, 1, 17.0))
sketch27.addConstraint(Sketcher.Constraint("DistanceX", 0, 2, -1, 1, 20.0))
sketch27.addConstraint(Sketcher.Constraint("DistanceY", -1, 1, 0, 2, 5.0))
sketch27.addConstraint(Sketcher.Constraint("DistanceX", -1, 1, 5, 2, 4.0))
sketch27.addConstraint(Sketcher.Constraint("DistanceX", 1, 2, 9, 3, 21.0))
sketch27.addConstraint(Sketcher.Constraint("DistanceY", -1, 1, 4, 3, 9.05))
pad7 = body.newObject("PartDesign::Pad", "Pad006")
pad7.Profile = sketch27
pad7.Length = 3.5

sketch28 = body.newObject("Sketcher::SketchObject", "Sketch027")
sketch28.AttachmentSupport = (doc.getObject("XY_Plane"), [""])
sketch28.MapMode = "FlatFace"
sketch28.AttachmentOffset = App.Placement(App.Vector(0, 0, 2.5), App.Rotation())
add_polygon(sketch28, [(-20, 38.5), (-20, 35), (-14.5, 35), (-14.5, 38.5)])
add_polygon(sketch28, [(4, 38.5), (4, 35), (9.5, 35), (9.5, 38.5)])
sketch28.addConstraint(Sketcher.Constraint("Vertical", 0))
sketch28.addConstraint(Sketcher.Constraint("Horizontal", 1))
sketch28.addConstraint(Sketcher.Constraint("Vertical", 2))
sketch28.addConstraint(Sketcher.Constraint("Horizontal", 3))
sketch28.addConstraint(Sketcher.Constraint("Vertical", 4))
sketch28.addConstraint(Sketcher.Constraint("Horizontal", 5))
sketch28.addConstraint(Sketcher.Constraint("Vertical", 6))
sketch28.addConstraint(Sketcher.Constraint("Horizontal", 7))
sketch28.addConstraint(Sketcher.Constraint("Horizontal", 1, 2, 4, 2))
sketch28.addConstraint(Sketcher.Constraint("Horizontal", 3, 2, 6, 2))
sketch28.addConstraint(Sketcher.Constraint("Equal", 3, 5))
sketch28.addConstraint(Sketcher.Constraint("DistanceX", 1, 1, 1, 2, 5.5))
sketch28.addConstraint(Sketcher.Constraint("DistanceY", 0, 2, 0, 1, 3.5))
sketch28.addConstraint(Sketcher.Constraint("DistanceX", 0, 2, -1, 1, 20.0))
sketch28.addConstraint(Sketcher.Constraint("DistanceY", -1, 1, 0, 2, 35.0))
sketch28.addConstraint(Sketcher.Constraint("DistanceX", -1, 1, 4, 2, 4.0))
pad8 = body.newObject("PartDesign::Pad", "Pad007")
pad8.Profile = sketch28
pad8.Length = 3.5

doc.recompute()
